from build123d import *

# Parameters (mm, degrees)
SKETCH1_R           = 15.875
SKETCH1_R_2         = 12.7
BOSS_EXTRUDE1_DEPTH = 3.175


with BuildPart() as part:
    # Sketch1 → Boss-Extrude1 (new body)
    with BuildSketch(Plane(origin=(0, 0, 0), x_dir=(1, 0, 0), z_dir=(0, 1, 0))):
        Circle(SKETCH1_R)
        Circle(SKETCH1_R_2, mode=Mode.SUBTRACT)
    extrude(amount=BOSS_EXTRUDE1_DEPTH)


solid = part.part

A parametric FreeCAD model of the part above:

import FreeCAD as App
import Part
import Sketcher
from FreeCAD import Vector
Q = App.Units.Quantity

doc = App.newDocument("Part")
body = doc.addObject("PartDesign::Body", "Body")

sketch1 = body.newObject("Sketcher::SketchObject", "Sketch")
sketch1.AttachmentSupport = (doc.getObject("XZ_Plane"), [""])
sketch1.MapMode = "FlatFace"
sketch1.addGeometry(Part.Circle(Vector(0, 0, 0), Vector(0, 0, 1), 16), False)
sketch1.addGeometry(Part.Circle(Vector(0, 0, 0), Vector(0, 0, 1), 13), False)
sketch1.addConstraint(Sketcher.Constraint("Coincident", 0, 3, -1, 1))
sketch1.addConstraint(Sketcher.Constraint("Coincident", 1, 3, -1, 1))
sketch1.addConstraint(Sketcher.Constraint("Diameter", 1, Q("1 in")))
sketch1.addConstraint(Sketcher.Constraint("Diameter", 0, Q("1.25 in")))
pad1 = body.newObject("PartDesign::Pad", "Pad")
pad1.Profile = sketch1
pad1.Length = Q("0.125 in")
pad1.Reversed = True

doc.recompute()
